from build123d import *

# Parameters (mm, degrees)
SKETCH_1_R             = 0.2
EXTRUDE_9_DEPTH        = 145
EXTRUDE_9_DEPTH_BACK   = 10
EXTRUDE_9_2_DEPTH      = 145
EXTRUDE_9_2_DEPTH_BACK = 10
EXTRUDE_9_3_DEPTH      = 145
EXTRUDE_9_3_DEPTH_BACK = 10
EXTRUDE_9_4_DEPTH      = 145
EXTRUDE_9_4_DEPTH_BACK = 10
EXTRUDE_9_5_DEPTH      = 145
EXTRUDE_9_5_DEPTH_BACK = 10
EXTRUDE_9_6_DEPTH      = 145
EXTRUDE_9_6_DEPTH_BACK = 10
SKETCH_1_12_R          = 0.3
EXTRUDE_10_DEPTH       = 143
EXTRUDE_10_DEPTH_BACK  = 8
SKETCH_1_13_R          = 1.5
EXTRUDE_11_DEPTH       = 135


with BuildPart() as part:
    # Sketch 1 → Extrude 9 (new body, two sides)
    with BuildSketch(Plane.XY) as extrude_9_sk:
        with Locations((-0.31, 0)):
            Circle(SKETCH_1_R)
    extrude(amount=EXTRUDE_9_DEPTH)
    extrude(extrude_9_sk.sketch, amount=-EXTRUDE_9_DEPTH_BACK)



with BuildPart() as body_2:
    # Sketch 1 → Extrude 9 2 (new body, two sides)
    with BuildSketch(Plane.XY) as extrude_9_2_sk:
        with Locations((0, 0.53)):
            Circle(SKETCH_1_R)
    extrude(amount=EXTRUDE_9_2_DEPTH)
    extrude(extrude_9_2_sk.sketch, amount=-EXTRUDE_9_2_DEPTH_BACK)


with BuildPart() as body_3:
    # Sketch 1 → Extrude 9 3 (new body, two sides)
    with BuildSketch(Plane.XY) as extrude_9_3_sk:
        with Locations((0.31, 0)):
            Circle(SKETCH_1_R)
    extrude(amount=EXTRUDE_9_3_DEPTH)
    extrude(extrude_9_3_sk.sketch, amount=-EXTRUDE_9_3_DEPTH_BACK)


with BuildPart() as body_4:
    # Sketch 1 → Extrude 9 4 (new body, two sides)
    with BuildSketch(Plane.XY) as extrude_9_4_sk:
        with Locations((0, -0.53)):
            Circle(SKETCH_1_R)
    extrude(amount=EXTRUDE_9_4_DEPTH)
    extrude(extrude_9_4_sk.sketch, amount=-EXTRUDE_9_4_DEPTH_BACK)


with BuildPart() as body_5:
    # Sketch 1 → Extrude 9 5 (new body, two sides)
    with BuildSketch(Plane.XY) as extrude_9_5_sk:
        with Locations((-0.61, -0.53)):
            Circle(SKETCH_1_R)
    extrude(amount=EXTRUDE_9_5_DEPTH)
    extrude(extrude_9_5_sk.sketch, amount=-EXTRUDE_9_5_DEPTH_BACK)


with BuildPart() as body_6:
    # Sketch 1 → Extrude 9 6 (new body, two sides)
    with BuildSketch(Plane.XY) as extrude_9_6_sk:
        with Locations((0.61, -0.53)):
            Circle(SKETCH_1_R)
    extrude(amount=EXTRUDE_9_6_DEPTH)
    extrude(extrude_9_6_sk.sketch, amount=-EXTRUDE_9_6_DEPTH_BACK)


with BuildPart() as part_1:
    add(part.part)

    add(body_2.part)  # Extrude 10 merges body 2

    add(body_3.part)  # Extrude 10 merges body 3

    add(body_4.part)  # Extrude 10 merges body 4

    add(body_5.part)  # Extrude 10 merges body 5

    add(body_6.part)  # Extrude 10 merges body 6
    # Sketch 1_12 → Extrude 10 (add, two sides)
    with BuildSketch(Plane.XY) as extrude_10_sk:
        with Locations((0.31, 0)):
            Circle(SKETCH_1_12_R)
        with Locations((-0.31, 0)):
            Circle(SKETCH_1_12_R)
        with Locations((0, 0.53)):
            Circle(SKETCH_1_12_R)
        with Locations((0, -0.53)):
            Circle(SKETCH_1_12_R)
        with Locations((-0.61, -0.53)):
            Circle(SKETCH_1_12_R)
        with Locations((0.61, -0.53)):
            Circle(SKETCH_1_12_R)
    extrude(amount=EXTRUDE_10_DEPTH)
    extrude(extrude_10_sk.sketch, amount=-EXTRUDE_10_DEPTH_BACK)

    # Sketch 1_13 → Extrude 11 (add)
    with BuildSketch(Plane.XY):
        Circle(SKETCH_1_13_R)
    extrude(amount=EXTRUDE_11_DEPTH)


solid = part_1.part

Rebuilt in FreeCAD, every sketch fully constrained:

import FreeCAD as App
import Part
import Sketcher

doc = App.newDocument("Part")
params = doc.addObject("Spreadsheet::Sheet", "Params")
for row, (alias, value) in enumerate([
    ("sketch1_diameter", "0.4 mm"),
    ("pad1_length", "145 mm"),
    ("pad1_length2", "10 mm"),
    ("sketch2_diameter", "0.4 mm"),
    ("pad2_length", "145 mm"),
    ("pad2_length2", "10 mm"),
    ("sketch3_diameter", "0.4 mm"),
    ("pad3_length", "145 mm"),
    ("pad3_length2", "10 mm"),
    ("sketch4_diameter", "0.4 mm"),
    ("pad4_length", "145 mm"),
    ("pad4_length2", "10 mm"),
    ("sketch5_diameter", "0.4 mm"),
    ("pad5_length", "145 mm"),
    ("pad5_length2", "10 mm"),
    ("sketch6_diameter", "0.4 mm"),
    ("pad6_length", "145 mm"),
    ("pad6_length2", "10 mm"),
    ("sketch7_diameter", "0.6 mm"),
    ("pad7_length", "143 mm"),
    ("pad7_length2", "8 mm"),
    ("sketch8_diameter", "3 mm"),
    ("pad8_length", "135 mm"),
], start=1):
    params.set(f"A{row}", alias)
    params.set(f"B{row}", "=" + value)
    params.setAlias(f"B{row}", alias)

body = doc.addObject("PartDesign::Body", "Body")

# Sketch on XY plane
sketch1 = body.newObject("Sketcher::SketchObject", "Sketch")
sketch1.AttachmentSupport = (doc.getObject("XY_Plane"), [""])
sketch1.MapMode = "FlatFace"
sketch1.addGeometry(Part.Circle(App.Vector(-0.31, 0, 0), App.Vector(0, 0, 1), 0.2), False)
sketch1.addConstraint(Sketcher.Constraint("PointOnObject", 0, 3, -1))
sketch1.addConstraint(Sketcher.Constraint("Diameter", 0, 0.4))
sketch1.addConstraint(Sketcher.Constraint("DistanceX", 0, 3, -1, 1, 0.31))
sketch1.setExpression("Constraints[1]", "Params.sketch1_diameter")
pad1 = body.newObject("PartDesign::Pad", "Pad")
pad1.Profile = sketch1
pad1.Type = "TwoLengths"
pad1.setExpression("Length", "Params.pad1_length")
pad1.setExpression("Length2", "Params.pad1_length2")
body2 = doc.addObject("PartDesign::Body", "Body001")

# Sketch on XY plane
sketch2 = body2.newObject("Sketcher::SketchObject", "Sketch001")
sketch2.AttachmentSupport = (doc.getObject("XY_Plane001"), [""])
sketch2.MapMode = "FlatFace"
sketch2.addGeometry(Part.Circle(App.Vector(0, 0.53, 0), App.Vector(0, 0, 1), 0.2), False)
sketch2.addConstraint(Sketcher.Constraint("PointOnObject", 0, 3, -2))
sketch2.addConstraint(Sketcher.Constraint("Diameter", 0, 0.4))
sketch2.addConstraint(Sketcher.Constraint("DistanceY", -1, 1, 0, 3, 0.53))
sketch2.setExpression("Constraints[1]", "Params.sketch2_diameter")
pad2 = body2.newObject("PartDesign::Pad", "Pad001")
pad2.Profile = sketch2
pad2.Type = "TwoLengths"
pad2.setExpression("Length", "Params.pad2_length")
pad2.setExpression("Length2", "Params.pad2_length2")
body3 = doc.addObject("PartDesign::Body", "Body002")

# Sketch on XY plane
sketch3 = body3.newObject("Sketcher::SketchObject", "Sketch002")
sketch3.AttachmentSupport = (doc.getObject("XY_Plane002"), [""])
sketch3.MapMode = "FlatFace"
sketch3.addGeometry(Part.Circle(App.Vector(0.31, 0, 0), App.Vector(0, 0, 1), 0.2), False)
sketch3.addConstraint(Sketcher.Constraint("PointOnObject", 0, 3, -1))
sketch3.addConstraint(Sketcher.Constraint("Diameter", 0, 0.4))
sketch3.addConstraint(Sketcher.Constraint("DistanceX", -1, 1, 0, 3, 0.31))
sketch3.setExpression("Constraints[1]", "Params.sketch3_diameter")
pad3 = body3.newObject("PartDesign::Pad", "Pad002")
pad3.Profile = sketch3
pad3.Type = "TwoLengths"
pad3.setExpression("Length", "Params.pad3_length")
pad3.setExpression("Length2", "Params.pad3_length2")
body4 = doc.addObject("PartDesign::Body", "Body003")

# Sketch on XY plane
sketch4 = body4.newObject("Sketcher::SketchObject", "Sketch003")
sketch4.AttachmentSupport = (doc.getObject("XY_Plane003"), [""])
sketch4.MapMode = "FlatFace"
sketch4.addGeometry(Part.Circle(App.Vector(0, -0.53, 0), App.Vector(0, 0, 1), 0.2), False)
sketch4.addConstraint(Sketcher.Constraint("PointOnObject", 0, 3, -2))
sketch4.addConstraint(Sketcher.Constraint("Diameter", 0, 0.4))
sketch4.addConstraint(Sketcher.Constraint("DistanceY", 0, 3, -1, 1, 0.53))
sketch4.setExpression("Constraints[1]", "Params.sketch4_diameter")
pad4 = body4.newObject("PartDesign::Pad", "Pad003")
pad4.Profile = sketch4
pad4.Type = "TwoLengths"
pad4.setExpression("Length", "Params.pad4_length")
pad4.setExpression("Length2", "Params.pad4_length2")
body5 = doc.addObject("PartDesign::Body", "Body004")

# Sketch on XY plane
sketch5 = body5.newObject("Sketcher::SketchObject", "Sketch004")
sketch5.AttachmentSupport = (doc.getObject("XY_Plane004"), [""])
sketch5.MapMode = "FlatFace"
sketch5.addGeometry(Part.Circle(App.Vector(-0.61, -0.53, 0), App.Vector(0, 0, 1), 0.2), False)
sketch5.addConstraint(Sketcher.Constraint("Diameter", 0, 0.4))
sketch5.addConstraint(Sketcher.Constraint("DistanceX", 0, 3, -1, 1, 0.61))
sketch5.addConstraint(Sketcher.Constraint("DistanceY", 0, 3, -1, 1, 0.53))
sketch5.setExpression("Constraints[0]", "Params.sketch5_diameter")
pad5 = body5.newObject("PartDesign::Pad", "Pad004")
pad5.Profile = sketch5
pad5.Type = "TwoLengths"
pad5.setExpression("Length", "Params.pad5_length")
pad5.setExpression("Length2", "Params.pad5_length2")
body6 = doc.addObject("PartDesign::Body", "Body005")

# Sketch on XY plane
sketch6 = body6.newObject("Sketcher::SketchObject", "Sketch005")
sketch6.AttachmentSupport = (doc.getObject("XY_Plane005"), [""])
sketch6.MapMode = "FlatFace"
sketch6.addGeometry(Part.Circle(App.Vector(0.61, -0.53, 0), App.Vector(0, 0, 1), 0.2), False)
sketch6.addConstraint(Sketcher.Constraint("Diameter", 0, 0.4))
sketch6.addConstraint(Sketcher.Constraint("DistanceX", -1, 1, 0, 3, 0.61))
sketch6.addConstraint(Sketcher.Constraint("DistanceY", 0, 3, -1, 1, 0.53))
sketch6.setExpression("Constraints[0]", "Params.sketch6_diameter")
pad6 = body6.newObject("PartDesign::Pad", "Pad005")
pad6.Profile = sketch6
pad6.Type = "TwoLengths"
pad6.setExpression("Length", "Params.pad6_length")
pad6.setExpression("Length2", "Params.pad6_length2")
body.AllowCompound = True
doc.recompute()

boolean = body.newObject("PartDesign::Boolean", "Boolean")
boolean.Type = "Fuse"
boolean.addObjects([body2])
doc.recompute()

boolean2 = body.newObject("PartDesign::Boolean", "Boolean001")
boolean2.Type = "Fuse"
boolean2.addObjects([body3])
doc.recompute()

boolean3 = body.newObject("PartDesign::Boolean", "Boolean002")
boolean3.Type = "Fuse"
boolean3.addObjects([body4])
doc.recompute()

boolean4 = body.newObject("PartDesign::Boolean", "Boolean003")
boolean4.Type = "Fuse"
boolean4.addObjects([body5])
doc.recompute()

boolean5 = body.newObject("PartDesign::Boolean", "Boolean004")
boolean5.Type = "Fuse"
boolean5.addObjects([body6])

# Sketch on XY plane
sketch7 = body.newObject("Sketcher::SketchObject", "Sketch006")
sketch7.AttachmentSupport = (doc.getObject("XY_Plane"), [""])
sketch7.MapMode = "FlatFace"
sketch7.addGeometry(Part.Circle(App.Vector(0.31, 0, 0), App.Vector(0, 0, 1), 0.3), False)
sketch7.addGeometry(Part.Circle(App.Vector(-0.31, 0, 0), App.Vector(0, 0, 1), 0.3), False)
sketch7.addGeometry(Part.Circle(App.Vector(0, 0.53, 0), App.Vector(0, 0, 1), 0.3), False)
sketch7.addGeometry(Part.Circle(App.Vector(0, -0.53, 0), App.Vector(0, 0, 1), 0.3), False)
sketch7.addGeometry(Part.Circle(App.Vector(-0.61, -0.53, 0), App.Vector(0, 0, 1), 0.3), False)
sketch7.addGeometry(Part.Circle(App.Vector(0.61, -0.53, 0), App.Vector(0, 0, 1), 0.3), False)
sketch7.addConstraint(Sketcher.Constraint("Equal", 0, 1))
sketch7.addConstraint(Sketcher.Constraint("Equal", 1, 2))
sketch7.addConstraint(Sketcher.Constraint("Equal", 2, 3))
sketch7.addConstraint(Sketcher.Constraint("Equal", 3, 4))
sketch7.addConstraint(Sketcher.Constraint("Equal", 4, 5))
sketch7.addConstraint(Sketcher.Constraint("Symmetric", 0, 3, 1, 3, -1, 1))
sketch7.addConstraint(Sketcher.Constraint("Symmetric", 2, 3, 3, 3, -1, 1))
sketch7.addConstraint(Sketcher.Constraint("Symmetric", 4, 3, 5, 3, -2))
sketch7.addConstraint(Sketcher.Constraint("PointOnObject", 0, 3, -1))
sketch7.addConstraint(Sketcher.Constraint("PointOnObject", 2, 3, -2))
sketch7.addConstraint(Sketcher.Constraint("Horizontal", 3, 3, 4, 3))
sketch7.addConstraint(Sketcher.Constraint("Diameter", 0, 0.6))
sketch7.addConstraint(Sketcher.Constraint("DistanceX", 4, 3, 1, 3, 0.3))
sketch7.addConstraint(Sketcher.Constraint("DistanceX", -1, 1, 0, 3, 0.31))
sketch7.addConstraint(Sketcher.Constraint("DistanceY", -1, 1, 2, 3, 0.53))
sketch7.setExpression("Constraints[11]", "Params.sketch7_diameter")
pad7 = body.newObject("PartDesign::Pad", "Pad006")
pad7.Profile = sketch7
pad7.Type = "TwoLengths"
pad7.setExpression("Length", "Params.pad7_length")
pad7.setExpression("Length2", "Params.pad7_length2")

# Sketch on XY plane
sketch8 = body.newObject("Sketcher::SketchObject", "Sketch007")
sketch8.AttachmentSupport = (doc.getObject("XY_Plane"), [""])
sketch8.MapMode = "FlatFace"
sketch8.addGeometry(Part.Circle(App.Vector(0, 0, 0), App.Vector(0, 0, 1), 1.5), False)
sketch8.addConstraint(Sketcher.Constraint("Coincident", 0, 3, -1, 1))
sketch8.addConstraint(Sketcher.Constraint("Diameter", 0, 3.0))
sketch8.setExpression("Constraints[1]", "Params.sketch8_diameter")
pad8 = body.newObject("PartDesign::Pad", "Pad007")
pad8.Profile = sketch8
pad8.setExpression("Length", "Params.pad8_length")

doc.recompute()
